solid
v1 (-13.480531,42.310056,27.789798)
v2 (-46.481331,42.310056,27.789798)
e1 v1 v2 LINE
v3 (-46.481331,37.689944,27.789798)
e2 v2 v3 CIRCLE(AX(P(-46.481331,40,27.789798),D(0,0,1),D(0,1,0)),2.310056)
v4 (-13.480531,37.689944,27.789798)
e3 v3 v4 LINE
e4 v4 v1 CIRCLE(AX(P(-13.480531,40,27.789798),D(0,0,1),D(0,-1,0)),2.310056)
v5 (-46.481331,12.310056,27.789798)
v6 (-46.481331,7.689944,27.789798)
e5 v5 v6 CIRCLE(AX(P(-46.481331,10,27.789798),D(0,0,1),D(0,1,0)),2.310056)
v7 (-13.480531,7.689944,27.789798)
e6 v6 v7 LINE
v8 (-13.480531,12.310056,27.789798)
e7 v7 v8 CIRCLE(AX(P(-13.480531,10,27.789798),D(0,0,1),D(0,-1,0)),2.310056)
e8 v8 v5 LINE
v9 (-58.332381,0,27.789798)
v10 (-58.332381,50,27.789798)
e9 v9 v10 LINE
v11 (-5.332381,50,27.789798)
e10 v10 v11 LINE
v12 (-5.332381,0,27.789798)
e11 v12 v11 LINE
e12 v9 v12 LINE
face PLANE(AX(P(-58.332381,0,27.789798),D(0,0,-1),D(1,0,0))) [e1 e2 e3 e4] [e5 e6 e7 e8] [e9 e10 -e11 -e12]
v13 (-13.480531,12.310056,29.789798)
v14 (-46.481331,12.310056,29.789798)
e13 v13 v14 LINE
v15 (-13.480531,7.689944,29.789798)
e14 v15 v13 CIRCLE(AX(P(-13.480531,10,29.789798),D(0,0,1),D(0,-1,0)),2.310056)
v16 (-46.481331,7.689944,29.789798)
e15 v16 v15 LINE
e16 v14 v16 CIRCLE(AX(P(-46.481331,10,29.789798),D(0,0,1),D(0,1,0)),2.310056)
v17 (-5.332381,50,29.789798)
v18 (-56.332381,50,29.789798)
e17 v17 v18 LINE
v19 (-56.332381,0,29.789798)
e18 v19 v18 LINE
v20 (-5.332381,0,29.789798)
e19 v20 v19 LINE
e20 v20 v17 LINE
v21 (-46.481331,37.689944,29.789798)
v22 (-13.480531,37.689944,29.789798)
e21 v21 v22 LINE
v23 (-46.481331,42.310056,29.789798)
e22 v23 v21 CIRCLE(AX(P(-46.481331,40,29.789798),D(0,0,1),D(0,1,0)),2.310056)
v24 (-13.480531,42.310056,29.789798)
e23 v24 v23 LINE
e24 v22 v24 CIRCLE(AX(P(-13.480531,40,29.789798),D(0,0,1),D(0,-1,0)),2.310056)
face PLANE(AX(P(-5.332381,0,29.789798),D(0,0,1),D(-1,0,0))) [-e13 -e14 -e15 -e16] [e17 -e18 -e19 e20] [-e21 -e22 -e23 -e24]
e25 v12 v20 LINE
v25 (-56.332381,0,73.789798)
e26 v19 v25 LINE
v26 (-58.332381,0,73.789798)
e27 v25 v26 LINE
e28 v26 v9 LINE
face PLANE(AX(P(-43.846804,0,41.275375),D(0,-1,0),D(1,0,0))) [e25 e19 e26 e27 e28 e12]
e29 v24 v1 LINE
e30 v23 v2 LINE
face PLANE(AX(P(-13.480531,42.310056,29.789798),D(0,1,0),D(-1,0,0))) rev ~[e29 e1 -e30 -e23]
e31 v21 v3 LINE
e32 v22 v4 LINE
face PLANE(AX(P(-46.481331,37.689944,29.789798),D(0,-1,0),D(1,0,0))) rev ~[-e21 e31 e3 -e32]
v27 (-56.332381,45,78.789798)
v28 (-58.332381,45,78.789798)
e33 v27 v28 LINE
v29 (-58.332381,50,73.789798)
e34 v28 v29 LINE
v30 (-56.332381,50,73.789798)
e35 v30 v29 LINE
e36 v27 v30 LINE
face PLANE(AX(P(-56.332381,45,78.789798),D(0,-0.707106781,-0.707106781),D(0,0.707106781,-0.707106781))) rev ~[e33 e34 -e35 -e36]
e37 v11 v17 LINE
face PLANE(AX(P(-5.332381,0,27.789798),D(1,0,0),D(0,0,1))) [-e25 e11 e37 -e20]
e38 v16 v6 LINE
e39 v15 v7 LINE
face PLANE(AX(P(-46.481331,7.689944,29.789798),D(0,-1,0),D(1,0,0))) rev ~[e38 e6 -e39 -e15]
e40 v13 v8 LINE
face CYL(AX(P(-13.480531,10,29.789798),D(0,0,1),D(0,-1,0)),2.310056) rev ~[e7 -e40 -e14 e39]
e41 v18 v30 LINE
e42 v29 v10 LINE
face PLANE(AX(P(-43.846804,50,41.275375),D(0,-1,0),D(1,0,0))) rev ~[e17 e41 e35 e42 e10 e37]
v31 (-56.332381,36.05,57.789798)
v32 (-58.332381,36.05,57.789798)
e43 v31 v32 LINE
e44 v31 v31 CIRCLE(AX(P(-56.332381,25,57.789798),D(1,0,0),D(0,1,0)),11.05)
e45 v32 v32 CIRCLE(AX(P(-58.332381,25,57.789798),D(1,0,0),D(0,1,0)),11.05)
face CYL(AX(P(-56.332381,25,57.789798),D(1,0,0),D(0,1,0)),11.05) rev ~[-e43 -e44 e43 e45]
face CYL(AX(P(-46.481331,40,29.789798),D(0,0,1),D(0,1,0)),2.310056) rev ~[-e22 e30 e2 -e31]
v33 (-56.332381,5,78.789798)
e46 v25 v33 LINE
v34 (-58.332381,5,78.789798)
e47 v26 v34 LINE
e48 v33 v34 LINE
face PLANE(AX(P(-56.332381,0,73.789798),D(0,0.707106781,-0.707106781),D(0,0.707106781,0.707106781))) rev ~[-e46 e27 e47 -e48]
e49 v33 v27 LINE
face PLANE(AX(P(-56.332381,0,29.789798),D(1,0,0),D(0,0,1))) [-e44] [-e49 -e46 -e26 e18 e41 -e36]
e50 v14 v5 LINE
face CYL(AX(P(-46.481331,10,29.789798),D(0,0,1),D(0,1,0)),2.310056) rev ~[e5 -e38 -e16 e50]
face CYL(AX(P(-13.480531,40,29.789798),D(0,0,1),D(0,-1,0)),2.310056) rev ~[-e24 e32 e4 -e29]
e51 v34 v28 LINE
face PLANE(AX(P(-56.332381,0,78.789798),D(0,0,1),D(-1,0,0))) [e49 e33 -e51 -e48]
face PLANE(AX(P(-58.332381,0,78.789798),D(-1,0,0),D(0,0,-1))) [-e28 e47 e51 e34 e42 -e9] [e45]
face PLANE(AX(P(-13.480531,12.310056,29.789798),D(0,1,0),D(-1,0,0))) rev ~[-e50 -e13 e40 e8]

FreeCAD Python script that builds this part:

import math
import FreeCAD as App
import Part
import Sketcher

V = App.Vector

doc = App.newDocument("Part")
body = doc.addObject("PartDesign::Body", "Body")

# Sketch on XZ plane
sketch1 = body.newObject("Sketcher::SketchObject", "Sketch")
sketch1.AttachmentSupport = (doc.getObject("XZ_Plane"), [""])
sketch1.MapMode = "FlatFace"
sketch1.addGeometry([
    Part.LineSegment(V(-56.332381, 78.789798, 0), V(-58.332381, 78.789798, 0)),  # 0
    Part.LineSegment(V(-58.332381, 78.789798, 0), V(-58.332381, 27.789798, 0)),  # 1
    Part.LineSegment(V(-58.332381, 27.789798, 0), V(-5.332381, 27.789798, 0)),  # 2
    Part.LineSegment(V(-5.332381, 27.789798, 0), V(-5.332381, 29.789798, 0)),  # 3
    Part.LineSegment(V(-5.332381, 29.789798, 0), V(-56.332381, 29.789798, 0)),  # 4
    Part.LineSegment(V(-56.332381, 29.789798, 0), V(-56.332381, 78.789798, 0)),  # 5
], False)
sketch1.addConstraint([
    Sketcher.Constraint("Coincident", 0, 2, 1, 1),
    Sketcher.Constraint("Coincident", 1, 2, 2, 1),
    Sketcher.Constraint("Coincident", 2, 2, 3, 1),
    Sketcher.Constraint("Coincident", 3, 2, 4, 1),
    Sketcher.Constraint("Coincident", 4, 2, 5, 1),
    Sketcher.Constraint("Coincident", 5, 2, 0, 1),
    Sketcher.Constraint("Horizontal", 0),
    Sketcher.Constraint("Vertical", 1),
    Sketcher.Constraint("Horizontal", 2),
    Sketcher.Constraint("Vertical", 3),
    Sketcher.Constraint("Horizontal", 4),
    Sketcher.Constraint("Vertical", 5),
    Sketcher.Constraint("Equal", 4, 1),
    Sketcher.Constraint("Equal", 0, 3),
    Sketcher.Constraint("DistanceX", 0, 2, 0, 1, 2.0),
    Sketcher.Constraint("DistanceX", 2, 1, 2, 2, 53.0),
    Sketcher.Constraint("DistanceY", -1, 1, 0, 2, 78.789798),
    Sketcher.Constraint("DistanceX", 0, 2, -1, 1, 58.332381),
])
pad1 = body.newObject("PartDesign::Pad", "Pad")
pad1.Profile = sketch1
pad1.Length = 50
pad1.Reversed = True

# Sketch on YZ plane
sketch2 = body.newObject("Sketcher::SketchObject", "Sketch001")
sketch2.AttachmentSupport = (doc.getObject("YZ_Plane"), [""])
sketch2.MapMode = "FlatFace"
sketch2.AttachmentOffset = App.Placement(V(0, 0, -56.332381), App.Rotation())
sketch2.addGeometry([
    Part.Circle(V(25, 57.789798, 0), V(0, 0, 1), 11.05),  # 0
    Part.LineSegment(V(0, 78.789798, 0), V(0, 73.789798, 0)),  # 1
    Part.LineSegment(V(0, 73.789798, 0), V(5, 78.789798, 0)),  # 2
    Part.LineSegment(V(5, 78.789798, 0), V(0, 78.789798, 0)),  # 3
    Part.LineSegment(V(50, 78.789798, 0), V(45, 78.789798, 0)),  # 4
    Part.LineSegment(V(45, 78.789798, 0), V(50, 73.789798, 0)),  # 5
    Part.LineSegment(V(50, 73.789798, 0), V(50, 78.789798, 0)),  # 6
], False)
sketch2.addConstraint([
    Sketcher.Constraint("Coincident", 1, 2, 2, 1),
    Sketcher.Constraint("Coincident", 2, 2, 3, 1),
    Sketcher.Constraint("Coincident", 3, 2, 1, 1),
    Sketcher.Constraint("Coincident", 4, 2, 5, 1),
    Sketcher.Constraint("Coincident", 5, 2, 6, 1),
    Sketcher.Constraint("Coincident", 6, 2, 4, 1),
    Sketcher.Constraint("Vertical", 1),
    Sketcher.Constraint("Horizontal", 3),
    Sketcher.Constraint("Horizontal", 4),
    Sketcher.Constraint("Vertical", 6),
    Sketcher.Constraint("PointOnObject", 1, 2, -2),
    Sketcher.Constraint("Perpendicular", 2, 5),
    Sketcher.Constraint("Horizontal", 3, 2, 4, 2),
    Sketcher.Constraint("Horizontal", 1, 2, 5, 2),
    Sketcher.Constraint("Equal", 3, 4),
    Sketcher.Constraint("Diameter", 0, 22.1),
    Sketcher.Constraint("DistanceX", 3, 2, 3, 1, 5.0),
    Sketcher.Constraint("DistanceX", -1, 1, 0, 3, 25.0),
    Sketcher.Constraint("DistanceX", -1, 1, 4, 2, 45.0),
    Sketcher.Constraint("DistanceY", 0, 3, 1, 2, 16.0),
    Sketcher.Constraint("DistanceY", -1, 1, 1, 2, 73.789798),
])
pocket1 = body.newObject("PartDesign::Pocket", "Pocket")
pocket1.Profile = sketch2
pocket1.Length = 2

# Sketch on XY plane
sketch3 = body.newObject("Sketcher::SketchObject", "Sketch002")
sketch3.AttachmentSupport = (doc.getObject("XY_Plane"), [""])
sketch3.MapMode = "FlatFace"
sketch3.AttachmentOffset = App.Placement(V(0, 0, 29.789798), App.Rotation())
sketch3.addGeometry([
    Part.ArcOfCircle(Part.Circle(V(-46.481331, 10, 0), V(0, 0, 1), 2.310056), math.radians(90), math.radians(270)),  # 0
    Part.LineSegment(V(-46.481331, 7.689944, 0), V(-13.480531, 7.689944, 0)),  # 1
    Part.ArcOfCircle(Part.Circle(V(-13.480531, 10, 0), V(0, 0, 1), 2.310056), math.radians(-90), math.radians(90)),  # 2
    Part.LineSegment(V(-13.480531, 12.310056, 0), V(-46.481331, 12.310056, 0)),  # 3
    Part.ArcOfCircle(Part.Circle(V(-46.481331, 40, 0), V(0, 0, 1), 2.310056), math.radians(90), math.radians(270)),  # 4
    Part.LineSegment(V(-46.481331, 37.689944, 0), V(-13.480531, 37.689944, 0)),  # 5
    Part.ArcOfCircle(Part.Circle(V(-13.480531, 40, 0), V(0, 0, 1), 2.310056), math.radians(-90), math.radians(90)),  # 6
    Part.LineSegment(V(-13.480531, 42.310056, 0), V(-46.481331, 42.310056, 0)),  # 7
], False)
sketch3.addConstraint([
    Sketcher.Constraint("Tangent", 0, 2, 1, 1),
    Sketcher.Constraint("Tangent", 1, 2, 2, 1),
    Sketcher.Constraint("Tangent", 2, 2, 3, 1),
    Sketcher.Constraint("Tangent", 3, 2, 0, 1),
    Sketcher.Constraint("Tangent", 4, 2, 5, 1),
    Sketcher.Constraint("Tangent", 5, 2, 6, 1),
    Sketcher.Constraint("Tangent", 6, 2, 7, 1),
    Sketcher.Constraint("Tangent", 7, 2, 4, 1),
    Sketcher.Constraint("Horizontal", 1),
    Sketcher.Constraint("Horizontal", 3),
    Sketcher.Constraint("Horizontal", 5),
    Sketcher.Constraint("Horizontal", 7),
    Sketcher.Constraint("Equal", 2, 4),
    Sketcher.Constraint("Vertical", 0, 3, 4, 3),
    Sketcher.Constraint("Vertical", 2, 3, 6, 3),
    Sketcher.Constraint("DistanceY", -1, 1, 0, 3, 10.0),
    Sketcher.Constraint("DistanceY", -1, 1, 4, 3, 40.0),
    Sketcher.Constraint("DistanceX", 1, 1, 1, 2, 33.0008),
    Sketcher.Constraint("Radius", 0, 2.310056),
    Sketcher.Constraint("DistanceX", 0, 3, -1, 1, 46.481331),
])
pocket2 = body.newObject("PartDesign::Pocket", "Pocket001")
pocket2.Profile = sketch3
pocket2.Length = 2

doc.recompute()
